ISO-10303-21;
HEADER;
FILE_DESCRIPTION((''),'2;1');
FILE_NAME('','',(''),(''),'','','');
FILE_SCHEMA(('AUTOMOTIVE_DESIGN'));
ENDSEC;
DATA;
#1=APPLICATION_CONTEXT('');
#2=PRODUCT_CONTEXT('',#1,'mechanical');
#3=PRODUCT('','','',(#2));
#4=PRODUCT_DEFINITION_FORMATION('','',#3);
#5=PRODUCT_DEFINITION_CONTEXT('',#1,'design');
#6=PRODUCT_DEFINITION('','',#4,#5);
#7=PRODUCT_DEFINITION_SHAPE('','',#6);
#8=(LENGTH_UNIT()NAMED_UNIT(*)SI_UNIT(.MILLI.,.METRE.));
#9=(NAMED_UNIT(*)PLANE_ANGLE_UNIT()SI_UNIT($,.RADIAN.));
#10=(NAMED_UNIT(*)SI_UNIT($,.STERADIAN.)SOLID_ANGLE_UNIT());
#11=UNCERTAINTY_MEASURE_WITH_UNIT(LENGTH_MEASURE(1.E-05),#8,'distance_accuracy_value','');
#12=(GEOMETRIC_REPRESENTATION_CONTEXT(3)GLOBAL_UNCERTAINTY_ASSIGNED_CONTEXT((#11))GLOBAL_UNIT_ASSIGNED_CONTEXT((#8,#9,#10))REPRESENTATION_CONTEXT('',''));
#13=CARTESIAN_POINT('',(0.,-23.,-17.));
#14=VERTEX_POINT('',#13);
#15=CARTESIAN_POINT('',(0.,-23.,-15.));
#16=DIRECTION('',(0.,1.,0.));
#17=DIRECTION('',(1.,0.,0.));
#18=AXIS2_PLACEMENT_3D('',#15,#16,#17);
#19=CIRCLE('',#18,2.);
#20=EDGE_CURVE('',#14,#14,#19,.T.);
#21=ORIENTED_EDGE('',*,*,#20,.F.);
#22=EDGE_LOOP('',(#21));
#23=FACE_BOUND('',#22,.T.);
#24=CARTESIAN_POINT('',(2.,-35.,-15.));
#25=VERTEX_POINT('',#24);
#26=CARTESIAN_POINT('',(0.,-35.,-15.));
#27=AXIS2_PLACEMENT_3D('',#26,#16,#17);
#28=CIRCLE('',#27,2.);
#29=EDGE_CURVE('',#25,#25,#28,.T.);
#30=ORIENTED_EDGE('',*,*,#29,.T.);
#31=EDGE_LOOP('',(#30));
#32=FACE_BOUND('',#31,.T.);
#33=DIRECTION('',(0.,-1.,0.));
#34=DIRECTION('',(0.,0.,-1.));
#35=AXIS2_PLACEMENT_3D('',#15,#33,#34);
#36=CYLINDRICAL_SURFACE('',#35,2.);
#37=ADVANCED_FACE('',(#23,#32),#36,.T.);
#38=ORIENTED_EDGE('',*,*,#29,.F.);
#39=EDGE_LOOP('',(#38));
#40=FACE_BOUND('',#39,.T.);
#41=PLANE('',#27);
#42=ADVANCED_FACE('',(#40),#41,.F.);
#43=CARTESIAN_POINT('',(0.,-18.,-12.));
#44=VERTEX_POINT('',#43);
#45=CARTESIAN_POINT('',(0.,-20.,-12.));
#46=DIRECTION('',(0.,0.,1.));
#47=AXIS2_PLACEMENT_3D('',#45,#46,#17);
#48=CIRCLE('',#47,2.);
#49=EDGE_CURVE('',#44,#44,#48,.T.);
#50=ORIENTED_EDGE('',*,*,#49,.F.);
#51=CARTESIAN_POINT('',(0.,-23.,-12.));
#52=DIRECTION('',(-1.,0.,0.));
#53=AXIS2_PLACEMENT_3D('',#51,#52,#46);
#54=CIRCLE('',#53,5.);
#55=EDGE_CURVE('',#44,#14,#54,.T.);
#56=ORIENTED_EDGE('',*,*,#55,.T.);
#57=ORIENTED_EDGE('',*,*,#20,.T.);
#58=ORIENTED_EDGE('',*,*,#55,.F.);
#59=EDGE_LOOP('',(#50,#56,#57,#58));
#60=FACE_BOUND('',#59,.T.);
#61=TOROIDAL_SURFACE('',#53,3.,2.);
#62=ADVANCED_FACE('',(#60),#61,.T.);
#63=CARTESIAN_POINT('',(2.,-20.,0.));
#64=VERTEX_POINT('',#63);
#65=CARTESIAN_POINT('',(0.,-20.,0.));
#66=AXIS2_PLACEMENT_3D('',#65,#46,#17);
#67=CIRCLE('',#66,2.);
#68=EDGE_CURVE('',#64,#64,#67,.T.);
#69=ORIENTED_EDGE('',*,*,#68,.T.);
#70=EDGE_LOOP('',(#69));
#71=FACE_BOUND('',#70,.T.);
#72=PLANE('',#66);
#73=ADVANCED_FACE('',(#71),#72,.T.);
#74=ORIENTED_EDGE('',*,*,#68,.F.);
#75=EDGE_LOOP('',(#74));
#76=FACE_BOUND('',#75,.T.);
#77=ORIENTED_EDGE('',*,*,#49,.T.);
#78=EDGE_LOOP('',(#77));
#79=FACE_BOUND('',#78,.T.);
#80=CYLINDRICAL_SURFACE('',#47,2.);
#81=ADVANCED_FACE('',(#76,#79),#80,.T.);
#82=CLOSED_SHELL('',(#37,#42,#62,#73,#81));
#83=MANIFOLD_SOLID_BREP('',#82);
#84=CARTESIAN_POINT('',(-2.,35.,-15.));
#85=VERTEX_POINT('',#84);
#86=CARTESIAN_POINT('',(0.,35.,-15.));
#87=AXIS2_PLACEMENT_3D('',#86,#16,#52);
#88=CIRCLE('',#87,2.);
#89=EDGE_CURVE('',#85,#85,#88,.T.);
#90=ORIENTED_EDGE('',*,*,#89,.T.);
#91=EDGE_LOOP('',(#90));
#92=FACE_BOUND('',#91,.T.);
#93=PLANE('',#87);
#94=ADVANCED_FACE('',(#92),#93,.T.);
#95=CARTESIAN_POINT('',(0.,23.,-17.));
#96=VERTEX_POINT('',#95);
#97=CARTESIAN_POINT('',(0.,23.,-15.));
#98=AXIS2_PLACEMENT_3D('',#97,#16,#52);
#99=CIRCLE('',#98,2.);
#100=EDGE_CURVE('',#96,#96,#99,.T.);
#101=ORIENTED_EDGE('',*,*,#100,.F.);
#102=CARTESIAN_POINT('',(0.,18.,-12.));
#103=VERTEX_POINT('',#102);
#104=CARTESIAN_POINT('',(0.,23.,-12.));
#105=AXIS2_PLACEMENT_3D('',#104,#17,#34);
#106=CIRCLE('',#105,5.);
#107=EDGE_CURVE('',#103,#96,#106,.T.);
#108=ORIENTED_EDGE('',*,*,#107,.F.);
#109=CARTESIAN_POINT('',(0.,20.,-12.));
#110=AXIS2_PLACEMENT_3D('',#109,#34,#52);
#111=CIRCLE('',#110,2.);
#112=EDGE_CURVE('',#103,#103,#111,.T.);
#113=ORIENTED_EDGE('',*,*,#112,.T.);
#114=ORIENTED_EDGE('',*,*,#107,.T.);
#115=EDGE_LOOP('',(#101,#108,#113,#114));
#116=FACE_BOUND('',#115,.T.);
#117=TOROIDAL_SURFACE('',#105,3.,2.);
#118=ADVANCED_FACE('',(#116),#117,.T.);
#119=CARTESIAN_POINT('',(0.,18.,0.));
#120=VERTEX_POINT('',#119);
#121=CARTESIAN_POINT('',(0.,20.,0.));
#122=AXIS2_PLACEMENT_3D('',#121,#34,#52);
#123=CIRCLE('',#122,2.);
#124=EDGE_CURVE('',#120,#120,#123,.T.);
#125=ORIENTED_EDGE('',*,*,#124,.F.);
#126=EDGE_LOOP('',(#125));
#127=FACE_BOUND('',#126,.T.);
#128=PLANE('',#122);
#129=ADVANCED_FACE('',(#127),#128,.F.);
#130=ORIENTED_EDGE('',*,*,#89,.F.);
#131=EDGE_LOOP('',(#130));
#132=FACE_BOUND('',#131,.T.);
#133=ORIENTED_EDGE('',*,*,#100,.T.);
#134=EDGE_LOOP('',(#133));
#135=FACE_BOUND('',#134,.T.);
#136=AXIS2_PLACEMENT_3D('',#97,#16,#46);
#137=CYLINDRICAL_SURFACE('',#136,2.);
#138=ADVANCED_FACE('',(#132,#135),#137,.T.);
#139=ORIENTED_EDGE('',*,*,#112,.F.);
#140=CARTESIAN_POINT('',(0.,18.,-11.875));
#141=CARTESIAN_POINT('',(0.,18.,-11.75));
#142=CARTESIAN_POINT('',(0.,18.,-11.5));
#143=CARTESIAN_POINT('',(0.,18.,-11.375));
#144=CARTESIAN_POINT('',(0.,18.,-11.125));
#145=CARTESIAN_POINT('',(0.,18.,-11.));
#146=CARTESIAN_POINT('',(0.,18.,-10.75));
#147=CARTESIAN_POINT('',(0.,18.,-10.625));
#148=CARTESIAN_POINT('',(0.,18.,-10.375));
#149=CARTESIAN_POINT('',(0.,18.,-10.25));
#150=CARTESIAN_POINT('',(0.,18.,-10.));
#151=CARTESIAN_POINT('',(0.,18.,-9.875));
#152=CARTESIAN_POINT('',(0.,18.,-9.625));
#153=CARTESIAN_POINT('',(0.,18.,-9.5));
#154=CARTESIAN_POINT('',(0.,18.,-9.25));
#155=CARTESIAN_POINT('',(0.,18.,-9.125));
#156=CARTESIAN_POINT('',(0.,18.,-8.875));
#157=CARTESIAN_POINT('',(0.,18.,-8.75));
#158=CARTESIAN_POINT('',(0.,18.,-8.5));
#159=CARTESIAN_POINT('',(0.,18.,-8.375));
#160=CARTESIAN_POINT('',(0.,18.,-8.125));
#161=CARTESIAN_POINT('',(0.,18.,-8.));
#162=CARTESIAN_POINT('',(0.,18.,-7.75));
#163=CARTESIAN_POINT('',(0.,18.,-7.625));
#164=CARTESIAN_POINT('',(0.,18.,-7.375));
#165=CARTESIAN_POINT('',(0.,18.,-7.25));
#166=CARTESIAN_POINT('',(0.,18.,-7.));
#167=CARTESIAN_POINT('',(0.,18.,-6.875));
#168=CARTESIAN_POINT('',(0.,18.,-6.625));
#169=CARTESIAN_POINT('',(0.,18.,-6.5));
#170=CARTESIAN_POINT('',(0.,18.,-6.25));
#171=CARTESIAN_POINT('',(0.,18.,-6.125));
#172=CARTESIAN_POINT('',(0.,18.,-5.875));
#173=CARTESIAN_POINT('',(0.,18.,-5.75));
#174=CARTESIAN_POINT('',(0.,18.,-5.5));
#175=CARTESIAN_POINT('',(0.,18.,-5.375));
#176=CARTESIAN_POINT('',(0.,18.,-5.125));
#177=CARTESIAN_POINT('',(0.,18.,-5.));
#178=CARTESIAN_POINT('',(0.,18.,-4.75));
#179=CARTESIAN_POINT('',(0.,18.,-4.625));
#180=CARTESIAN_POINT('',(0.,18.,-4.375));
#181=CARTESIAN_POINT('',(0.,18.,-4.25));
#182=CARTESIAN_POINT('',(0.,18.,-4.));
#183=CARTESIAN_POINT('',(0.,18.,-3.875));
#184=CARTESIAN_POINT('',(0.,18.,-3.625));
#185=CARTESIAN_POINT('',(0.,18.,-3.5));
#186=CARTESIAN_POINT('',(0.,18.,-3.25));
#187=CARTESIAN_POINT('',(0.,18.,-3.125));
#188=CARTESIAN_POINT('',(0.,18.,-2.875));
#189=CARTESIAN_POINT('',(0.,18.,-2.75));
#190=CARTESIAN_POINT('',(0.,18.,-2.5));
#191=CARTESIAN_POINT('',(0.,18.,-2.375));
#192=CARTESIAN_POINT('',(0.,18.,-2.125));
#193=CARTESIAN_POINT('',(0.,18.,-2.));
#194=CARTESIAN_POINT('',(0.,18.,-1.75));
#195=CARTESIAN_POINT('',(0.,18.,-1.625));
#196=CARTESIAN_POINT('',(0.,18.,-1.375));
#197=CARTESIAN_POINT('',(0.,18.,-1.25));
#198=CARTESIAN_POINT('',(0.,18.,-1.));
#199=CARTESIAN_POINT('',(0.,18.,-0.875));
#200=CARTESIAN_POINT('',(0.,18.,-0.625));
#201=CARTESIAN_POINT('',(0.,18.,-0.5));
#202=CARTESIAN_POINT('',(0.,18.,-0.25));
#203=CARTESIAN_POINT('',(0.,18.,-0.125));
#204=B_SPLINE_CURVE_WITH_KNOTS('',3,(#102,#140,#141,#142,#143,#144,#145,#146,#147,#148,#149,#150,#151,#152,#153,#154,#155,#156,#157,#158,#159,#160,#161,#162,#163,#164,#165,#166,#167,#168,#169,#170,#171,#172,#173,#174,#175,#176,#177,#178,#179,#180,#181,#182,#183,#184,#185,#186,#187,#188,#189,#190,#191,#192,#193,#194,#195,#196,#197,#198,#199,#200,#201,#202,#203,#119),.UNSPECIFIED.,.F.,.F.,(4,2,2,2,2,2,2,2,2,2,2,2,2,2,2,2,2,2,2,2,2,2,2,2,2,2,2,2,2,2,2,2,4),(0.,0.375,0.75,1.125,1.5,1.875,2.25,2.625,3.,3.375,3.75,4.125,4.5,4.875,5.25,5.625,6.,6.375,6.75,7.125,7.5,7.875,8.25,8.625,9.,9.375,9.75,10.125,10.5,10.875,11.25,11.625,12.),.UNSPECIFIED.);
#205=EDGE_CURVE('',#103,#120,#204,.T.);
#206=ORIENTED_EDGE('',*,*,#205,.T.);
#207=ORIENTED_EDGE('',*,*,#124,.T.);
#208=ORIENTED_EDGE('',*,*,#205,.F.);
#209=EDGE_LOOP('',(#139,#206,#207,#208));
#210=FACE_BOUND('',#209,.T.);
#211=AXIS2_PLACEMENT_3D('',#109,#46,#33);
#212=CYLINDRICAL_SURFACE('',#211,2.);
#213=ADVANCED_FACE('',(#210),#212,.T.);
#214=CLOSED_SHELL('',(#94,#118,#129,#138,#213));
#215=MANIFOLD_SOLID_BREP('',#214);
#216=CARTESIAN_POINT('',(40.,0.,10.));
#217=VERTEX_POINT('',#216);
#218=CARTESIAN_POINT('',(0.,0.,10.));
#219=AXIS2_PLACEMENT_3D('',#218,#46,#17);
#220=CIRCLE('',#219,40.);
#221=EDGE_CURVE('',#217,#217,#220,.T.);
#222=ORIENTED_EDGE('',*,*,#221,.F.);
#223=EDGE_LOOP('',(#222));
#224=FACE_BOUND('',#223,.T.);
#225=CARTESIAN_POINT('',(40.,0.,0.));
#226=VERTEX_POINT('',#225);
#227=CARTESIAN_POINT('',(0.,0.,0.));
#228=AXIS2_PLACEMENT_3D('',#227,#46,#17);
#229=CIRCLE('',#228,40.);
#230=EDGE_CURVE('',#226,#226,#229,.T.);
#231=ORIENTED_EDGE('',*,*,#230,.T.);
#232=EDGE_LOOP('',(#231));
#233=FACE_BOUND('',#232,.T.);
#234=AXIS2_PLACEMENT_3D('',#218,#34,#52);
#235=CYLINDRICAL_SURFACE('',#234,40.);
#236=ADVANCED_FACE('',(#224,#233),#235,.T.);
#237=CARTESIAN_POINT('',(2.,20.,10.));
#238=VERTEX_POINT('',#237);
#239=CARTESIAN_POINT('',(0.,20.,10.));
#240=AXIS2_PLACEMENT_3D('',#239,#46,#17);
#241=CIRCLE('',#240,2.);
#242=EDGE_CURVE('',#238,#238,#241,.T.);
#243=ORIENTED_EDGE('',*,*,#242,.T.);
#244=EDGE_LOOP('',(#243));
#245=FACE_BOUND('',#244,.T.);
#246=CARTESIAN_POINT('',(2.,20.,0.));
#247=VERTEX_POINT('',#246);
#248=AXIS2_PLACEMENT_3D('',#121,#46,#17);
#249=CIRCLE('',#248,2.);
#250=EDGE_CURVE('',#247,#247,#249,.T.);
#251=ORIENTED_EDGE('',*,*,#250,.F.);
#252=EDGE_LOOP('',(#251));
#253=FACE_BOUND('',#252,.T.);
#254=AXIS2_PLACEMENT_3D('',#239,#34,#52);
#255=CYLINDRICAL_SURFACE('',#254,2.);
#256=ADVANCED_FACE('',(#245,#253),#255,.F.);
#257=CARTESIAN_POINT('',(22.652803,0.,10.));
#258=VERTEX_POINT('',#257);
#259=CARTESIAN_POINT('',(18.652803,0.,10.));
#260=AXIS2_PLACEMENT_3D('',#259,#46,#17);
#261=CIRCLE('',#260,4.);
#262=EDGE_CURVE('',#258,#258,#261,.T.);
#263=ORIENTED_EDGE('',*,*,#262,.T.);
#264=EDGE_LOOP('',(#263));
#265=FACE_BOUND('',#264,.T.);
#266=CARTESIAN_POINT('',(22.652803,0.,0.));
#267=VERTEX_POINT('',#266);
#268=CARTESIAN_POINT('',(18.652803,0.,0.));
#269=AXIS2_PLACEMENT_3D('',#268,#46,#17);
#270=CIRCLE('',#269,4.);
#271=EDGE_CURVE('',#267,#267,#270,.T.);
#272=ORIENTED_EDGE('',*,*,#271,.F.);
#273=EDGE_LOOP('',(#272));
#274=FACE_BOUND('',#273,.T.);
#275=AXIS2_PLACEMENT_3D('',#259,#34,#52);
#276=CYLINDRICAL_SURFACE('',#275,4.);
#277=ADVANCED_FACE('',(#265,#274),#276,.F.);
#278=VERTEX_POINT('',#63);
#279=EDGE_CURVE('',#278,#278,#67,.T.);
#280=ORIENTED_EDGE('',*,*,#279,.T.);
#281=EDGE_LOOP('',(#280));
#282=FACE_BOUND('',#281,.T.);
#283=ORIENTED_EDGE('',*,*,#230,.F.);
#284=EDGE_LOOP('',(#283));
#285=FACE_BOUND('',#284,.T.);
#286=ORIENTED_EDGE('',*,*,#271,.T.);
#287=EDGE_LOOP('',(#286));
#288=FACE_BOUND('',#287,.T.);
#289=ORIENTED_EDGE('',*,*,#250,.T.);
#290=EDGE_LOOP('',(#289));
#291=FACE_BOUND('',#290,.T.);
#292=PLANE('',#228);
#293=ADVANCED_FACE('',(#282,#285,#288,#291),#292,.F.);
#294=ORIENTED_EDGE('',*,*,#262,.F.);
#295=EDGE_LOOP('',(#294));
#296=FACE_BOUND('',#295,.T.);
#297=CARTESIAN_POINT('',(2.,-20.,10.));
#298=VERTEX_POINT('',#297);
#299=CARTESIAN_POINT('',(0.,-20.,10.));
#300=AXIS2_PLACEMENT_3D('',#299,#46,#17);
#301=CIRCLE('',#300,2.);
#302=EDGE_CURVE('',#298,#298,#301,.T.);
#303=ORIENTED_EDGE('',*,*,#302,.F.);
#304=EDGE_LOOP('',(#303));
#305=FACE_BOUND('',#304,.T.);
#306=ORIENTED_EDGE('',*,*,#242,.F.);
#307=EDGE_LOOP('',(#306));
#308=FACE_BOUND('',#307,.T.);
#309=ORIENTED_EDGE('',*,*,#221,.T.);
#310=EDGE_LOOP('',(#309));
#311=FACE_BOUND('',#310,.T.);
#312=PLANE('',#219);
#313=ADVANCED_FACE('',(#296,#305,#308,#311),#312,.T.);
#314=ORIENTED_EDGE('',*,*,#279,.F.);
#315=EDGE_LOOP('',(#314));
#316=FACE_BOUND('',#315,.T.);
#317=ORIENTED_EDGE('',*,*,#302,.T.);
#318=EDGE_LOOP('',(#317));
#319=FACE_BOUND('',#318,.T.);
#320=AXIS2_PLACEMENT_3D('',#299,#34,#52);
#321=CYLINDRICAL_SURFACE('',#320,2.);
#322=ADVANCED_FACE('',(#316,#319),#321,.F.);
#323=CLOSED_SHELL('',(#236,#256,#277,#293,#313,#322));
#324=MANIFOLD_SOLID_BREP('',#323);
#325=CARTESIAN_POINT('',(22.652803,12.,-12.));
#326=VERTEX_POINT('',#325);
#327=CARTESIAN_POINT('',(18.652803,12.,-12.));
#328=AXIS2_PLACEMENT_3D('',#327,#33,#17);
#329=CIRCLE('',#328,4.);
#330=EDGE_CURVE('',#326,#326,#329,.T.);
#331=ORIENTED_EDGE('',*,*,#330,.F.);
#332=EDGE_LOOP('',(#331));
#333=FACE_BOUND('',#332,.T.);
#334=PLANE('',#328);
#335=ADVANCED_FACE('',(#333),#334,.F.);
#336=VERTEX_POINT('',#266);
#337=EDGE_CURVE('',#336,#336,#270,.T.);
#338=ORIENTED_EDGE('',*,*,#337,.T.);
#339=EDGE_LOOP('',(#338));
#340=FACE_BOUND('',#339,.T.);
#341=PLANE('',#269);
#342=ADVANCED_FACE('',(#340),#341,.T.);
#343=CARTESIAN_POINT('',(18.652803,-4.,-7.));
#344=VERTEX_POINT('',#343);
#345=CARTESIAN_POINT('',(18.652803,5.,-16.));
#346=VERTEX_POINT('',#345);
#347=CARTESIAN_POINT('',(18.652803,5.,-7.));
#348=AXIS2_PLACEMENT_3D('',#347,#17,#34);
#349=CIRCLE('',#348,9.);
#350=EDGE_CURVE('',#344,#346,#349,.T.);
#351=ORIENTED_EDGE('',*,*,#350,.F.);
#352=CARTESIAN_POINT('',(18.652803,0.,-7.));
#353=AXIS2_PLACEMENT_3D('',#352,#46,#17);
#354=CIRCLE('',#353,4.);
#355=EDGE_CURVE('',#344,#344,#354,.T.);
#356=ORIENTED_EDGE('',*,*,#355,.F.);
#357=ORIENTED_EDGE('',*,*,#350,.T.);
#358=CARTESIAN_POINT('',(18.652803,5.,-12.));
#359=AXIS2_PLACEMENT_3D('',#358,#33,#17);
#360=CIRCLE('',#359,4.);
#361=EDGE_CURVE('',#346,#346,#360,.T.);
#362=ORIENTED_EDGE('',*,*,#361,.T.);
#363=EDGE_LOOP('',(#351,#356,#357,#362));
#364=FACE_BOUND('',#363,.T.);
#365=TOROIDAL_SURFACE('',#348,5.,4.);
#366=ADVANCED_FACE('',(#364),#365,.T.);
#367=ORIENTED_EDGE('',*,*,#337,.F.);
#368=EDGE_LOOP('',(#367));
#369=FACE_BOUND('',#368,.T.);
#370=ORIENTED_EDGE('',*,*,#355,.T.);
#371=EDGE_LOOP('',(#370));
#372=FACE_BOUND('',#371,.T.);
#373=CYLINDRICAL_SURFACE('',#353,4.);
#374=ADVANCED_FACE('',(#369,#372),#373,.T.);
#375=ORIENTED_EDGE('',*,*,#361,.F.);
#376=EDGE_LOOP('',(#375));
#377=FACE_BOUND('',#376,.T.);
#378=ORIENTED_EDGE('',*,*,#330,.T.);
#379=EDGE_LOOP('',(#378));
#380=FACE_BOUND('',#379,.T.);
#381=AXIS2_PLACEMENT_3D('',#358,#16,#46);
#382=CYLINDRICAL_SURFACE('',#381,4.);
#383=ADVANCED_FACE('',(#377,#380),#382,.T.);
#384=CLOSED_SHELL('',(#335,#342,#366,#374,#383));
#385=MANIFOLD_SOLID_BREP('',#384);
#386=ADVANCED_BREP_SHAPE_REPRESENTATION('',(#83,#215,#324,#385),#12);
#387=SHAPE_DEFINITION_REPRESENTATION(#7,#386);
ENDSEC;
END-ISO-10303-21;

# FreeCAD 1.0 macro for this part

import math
import FreeCAD as App
import Part
import Sketcher
from FreeCAD import Vector
Q = App.Units.Quantity

doc = App.newDocument("Part")
body = doc.addObject("PartDesign::Body", "Body")

# Sketch on XY plane
sketch1 = body.newObject("Sketcher::SketchObject", "Sketch")
sketch1.AttachmentSupport = (doc.getObject("XY_Plane"), [""])
sketch1.MapMode = "FlatFace"
sketch1.addGeometry([
    Part.Circle(Vector(0, 0, 0), Vector(0, 0, 1), 40),
    Part.Circle(Vector(0, -20, 0), Vector(0, 0, 1), 2),
    Part.Circle(Vector(0, 20, 0), Vector(0, 0, 1), 2),
    Part.Circle(Vector(18.7, 0, 0), Vector(0, 0, 1), 4),
], False)
sketch1.addConstraint([
    Sketcher.Constraint("Coincident", 0, 3, -1, 1),
    Sketcher.Constraint("Equal", 1, 2),
    Sketcher.Constraint("Symmetric", 1, 3, 2, 3, -1, 1),
    Sketcher.Constraint("PointOnObject", 1, 3, -2),
    Sketcher.Constraint("PointOnObject", 3, 3, -1),
    Sketcher.Constraint("Diameter", 0, Q("80 mm")),
    Sketcher.Constraint("Diameter", 1, Q("4 mm")),
    Sketcher.Constraint("Diameter", 3, Q("8 mm")),
    Sketcher.Constraint("DistanceY", 1, 3, -1, 1, Q("20 mm")),
    Sketcher.Constraint("DistanceX", -1, 1, 3, 3, Q("18.652803 mm")),
])
pad1 = body.newObject("PartDesign::Pad", "Pad")
pad1.Profile = sketch1
pad1.Length = 10
body2 = doc.addObject("PartDesign::Body", "Body001")

# Sketch on XY plane
sketch2 = body2.newObject("Sketcher::SketchObject", "Sketch001")
sketch2.AttachmentSupport = (doc.getObject("XY_Plane001"), [""])
sketch2.MapMode = "FlatFace"
sketch2.addGeometry(Part.Circle(Vector(0, -20, 0), Vector(0, 0, 1), 2), False)
sketch2.addConstraint([
    Sketcher.Constraint("PointOnObject", 0, 3, -2),
    Sketcher.Constraint("Diameter", 0, Q("4 mm")),
    Sketcher.Constraint("DistanceY", 0, 3, -1, 1, Q("20 mm")),
])

# Sketch on YZ plane
sketch3 = body2.newObject("Sketcher::SketchObject", "Sketch002")
sketch3.AttachmentSupport = (doc.getObject("YZ_Plane001"), [""])
sketch3.MapMode = "FlatFace"
sketch3.addGeometry([
    Part.LineSegment(Vector(-35, -17, 0), Vector(-23, -17, 0)),
    Part.ArcOfCircle(Part.Circle(Vector(-23, -12, 0), Vector(0, 0, 1), 5), math.radians(-90), math.radians(0)),
    Part.LineSegment(Vector(-18, -12, 0), Vector(-18, 0, 0)),
], False)
sketch3.addConstraint([
    Sketcher.Constraint("Tangent", 0, 2, 1, 1),
    Sketcher.Constraint("Tangent", 1, 2, 2, 1),
    Sketcher.Constraint("Horizontal", 0),
    Sketcher.Constraint("Vertical", 2),
    Sketcher.Constraint("PointOnObject", 2, 2, -1),
    Sketcher.Constraint("Equal", 0, 2),
    Sketcher.Constraint("Radius", 1, Q("5 mm")),
    Sketcher.Constraint("DistanceX", 0, 1, 0, 2, Q("12 mm")),
    Sketcher.Constraint("DistanceX", 1, 3, -1, 1, Q("23 mm")),
])
doc.recompute()

additivepipe = body2.newObject("PartDesign::AdditivePipe", "AdditivePipe")
additivepipe.Profile = sketch2
additivepipe.Spine = (sketch3, ["Edge1", "Edge2", "Edge3"])
body3 = doc.addObject("PartDesign::Body", "Body002")

# Sketch on XY plane
sketch4 = body3.newObject("Sketcher::SketchObject", "Sketch003")
sketch4.AttachmentSupport = (doc.getObject("XY_Plane002"), [""])
sketch4.MapMode = "FlatFace"
sketch4.addGeometry(Part.Circle(Vector(0, 20, 0), Vector(0, 0, 1), 2), False)
sketch4.addConstraint([
    Sketcher.Constraint("PointOnObject", 0, 3, -2),
    Sketcher.Constraint("Diameter", 0, Q("4 mm")),
    Sketcher.Constraint("DistanceY", -1, 1, 0, 3, Q("20 mm")),
])

# Sketch on YZ plane
sketch5 = body3.newObject("Sketcher::SketchObject", "Sketch004")
sketch5.AttachmentSupport = (doc.getObject("YZ_Plane002"), [""])
sketch5.MapMode = "FlatFace"
sketch5.addGeometry([
    Part.LineSegment(Vector(35, -17, 0), Vector(23, -17, 0)),
    Part.ArcOfCircle(Part.Circle(Vector(23, -12, 0), Vector(0, 0, 1), 5), math.radians(180), math.radians(270)),
    Part.LineSegment(Vector(18, -12, 0), Vector(18, 0, 0)),
], False)
sketch5.addConstraint([
    Sketcher.Constraint("Tangent", 0, 2, 1, 2),
    Sketcher.Constraint("Tangent", 1, 1, 2, 1),
    Sketcher.Constraint("Horizontal", 0),
    Sketcher.Constraint("Vertical", 2),
    Sketcher.Constraint("PointOnObject", 2, 2, -1),
    Sketcher.Constraint("Equal", 0, 2),
    Sketcher.Constraint("Radius", 1, Q("5 mm")),
    Sketcher.Constraint("DistanceX", 0, 2, 0, 1, Q("12 mm")),
    Sketcher.Constraint("DistanceX", -1, 1, 1, 3, Q("23 mm")),
])
doc.recompute()

additivepipe2 = body3.newObject("PartDesign::AdditivePipe", "AdditivePipe001")
additivepipe2.Profile = sketch4
additivepipe2.Spine = (sketch5, ["Edge1", "Edge2", "Edge3"])
body4 = doc.addObject("PartDesign::Body", "Body003")

# Sketch on XY plane
sketch6 = body4.newObject("Sketcher::SketchObject", "Sketch005")
sketch6.AttachmentSupport = (doc.getObject("XY_Plane003"), [""])
sketch6.MapMode = "FlatFace"
sketch6.addGeometry(Part.Circle(Vector(18.7, 0, 0), Vector(0, 0, 1), 4), False)
sketch6.addConstraint([
    Sketcher.Constraint("PointOnObject", 0, 3, -1),
    Sketcher.Constraint("Diameter", 0, Q("8 mm")),
    Sketcher.Constraint("DistanceX", -1, 1, 0, 3, Q("18.652803 mm")),
])

# Sketch on YZ plane
sketch7 = body4.newObject("Sketcher::SketchObject", "Sketch006")
sketch7.AttachmentSupport = (doc.getObject("YZ_Plane003"), [""])
sketch7.MapMode = "FlatFace"
sketch7.AttachmentOffset = App.Placement(Vector(0, 0, 18.652803), App.Rotation())
sketch7.addGeometry([
    Part.LineSegment(Vector(0, 0, 0), Vector(0, -7, 0)),
    Part.ArcOfCircle(Part.Circle(Vector(5, -7, 0), Vector(0, 0, 1), 5), math.radians(180), math.radians(270)),
    Part.LineSegment(Vector(5, -12, 0), Vector(12, -12, 0)),
], False)
sketch7.addConstraint([
    Sketcher.Constraint("Tangent", 0, 2, 1, 1),
    Sketcher.Constraint("Tangent", 1, 2, 2, 1),
    Sketcher.Constraint("Vertical", 0),
    Sketcher.Constraint("Horizontal", 2),
    Sketcher.Constraint("Coincident", 0, 1, -1, 1),
    Sketcher.Constraint("Equal", 2, 0),
    Sketcher.Constraint("Radius", 1, Q("5 mm")),
    Sketcher.Constraint("DistanceX", 2, 1, 2, 2, Q("7 mm")),
])
doc.recompute()

additivepipe3 = body4.newObject("PartDesign::AdditivePipe", "AdditivePipe002")
additivepipe3.Profile = sketch6
additivepipe3.Spine = (sketch7, ["Edge1", "Edge2", "Edge3"])

doc.recompute()
